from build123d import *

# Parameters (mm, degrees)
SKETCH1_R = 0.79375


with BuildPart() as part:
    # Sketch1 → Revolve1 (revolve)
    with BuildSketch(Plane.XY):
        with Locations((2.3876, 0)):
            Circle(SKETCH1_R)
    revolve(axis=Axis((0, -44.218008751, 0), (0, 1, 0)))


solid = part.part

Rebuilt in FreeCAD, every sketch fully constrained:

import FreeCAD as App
import Part
import Sketcher
from FreeCAD import Vector
Q = App.Units.Quantity

doc = App.newDocument("Part")
body = doc.addObject("PartDesign::Body", "Body")

# Sketch on XY plane
sketch1 = doc.addObject("Sketcher::SketchObject", "Sketch")
body.addObject(sketch1)
sketch1.AttachmentSupport = (doc.XY_Plane, [""])
sketch1.MapMode = "FlatFace"
sketch1.addGeometry(Part.Circle(Vector(2.4, 0, 0), Vector(0, 0, 1), 0.8), False)
sketch1.addConstraint(Sketcher.Constraint("PointOnObject", 0, 3, -1))
sketch1.addConstraint(Sketcher.Constraint("Diameter", 0, Q("0.0625 in")))
sketch1.addConstraint(Sketcher.Constraint("DistanceX", -1, 1, 0, 3, Q("0.094 in")))
revolution = doc.addObject("PartDesign::Revolution", "Revolution")
body.addObject(revolution)
revolution.Profile = sketch1
revolution.ReferenceAxis = (sketch1, ["V_Axis"])
revolution.Angle = 360

doc.recompute()
